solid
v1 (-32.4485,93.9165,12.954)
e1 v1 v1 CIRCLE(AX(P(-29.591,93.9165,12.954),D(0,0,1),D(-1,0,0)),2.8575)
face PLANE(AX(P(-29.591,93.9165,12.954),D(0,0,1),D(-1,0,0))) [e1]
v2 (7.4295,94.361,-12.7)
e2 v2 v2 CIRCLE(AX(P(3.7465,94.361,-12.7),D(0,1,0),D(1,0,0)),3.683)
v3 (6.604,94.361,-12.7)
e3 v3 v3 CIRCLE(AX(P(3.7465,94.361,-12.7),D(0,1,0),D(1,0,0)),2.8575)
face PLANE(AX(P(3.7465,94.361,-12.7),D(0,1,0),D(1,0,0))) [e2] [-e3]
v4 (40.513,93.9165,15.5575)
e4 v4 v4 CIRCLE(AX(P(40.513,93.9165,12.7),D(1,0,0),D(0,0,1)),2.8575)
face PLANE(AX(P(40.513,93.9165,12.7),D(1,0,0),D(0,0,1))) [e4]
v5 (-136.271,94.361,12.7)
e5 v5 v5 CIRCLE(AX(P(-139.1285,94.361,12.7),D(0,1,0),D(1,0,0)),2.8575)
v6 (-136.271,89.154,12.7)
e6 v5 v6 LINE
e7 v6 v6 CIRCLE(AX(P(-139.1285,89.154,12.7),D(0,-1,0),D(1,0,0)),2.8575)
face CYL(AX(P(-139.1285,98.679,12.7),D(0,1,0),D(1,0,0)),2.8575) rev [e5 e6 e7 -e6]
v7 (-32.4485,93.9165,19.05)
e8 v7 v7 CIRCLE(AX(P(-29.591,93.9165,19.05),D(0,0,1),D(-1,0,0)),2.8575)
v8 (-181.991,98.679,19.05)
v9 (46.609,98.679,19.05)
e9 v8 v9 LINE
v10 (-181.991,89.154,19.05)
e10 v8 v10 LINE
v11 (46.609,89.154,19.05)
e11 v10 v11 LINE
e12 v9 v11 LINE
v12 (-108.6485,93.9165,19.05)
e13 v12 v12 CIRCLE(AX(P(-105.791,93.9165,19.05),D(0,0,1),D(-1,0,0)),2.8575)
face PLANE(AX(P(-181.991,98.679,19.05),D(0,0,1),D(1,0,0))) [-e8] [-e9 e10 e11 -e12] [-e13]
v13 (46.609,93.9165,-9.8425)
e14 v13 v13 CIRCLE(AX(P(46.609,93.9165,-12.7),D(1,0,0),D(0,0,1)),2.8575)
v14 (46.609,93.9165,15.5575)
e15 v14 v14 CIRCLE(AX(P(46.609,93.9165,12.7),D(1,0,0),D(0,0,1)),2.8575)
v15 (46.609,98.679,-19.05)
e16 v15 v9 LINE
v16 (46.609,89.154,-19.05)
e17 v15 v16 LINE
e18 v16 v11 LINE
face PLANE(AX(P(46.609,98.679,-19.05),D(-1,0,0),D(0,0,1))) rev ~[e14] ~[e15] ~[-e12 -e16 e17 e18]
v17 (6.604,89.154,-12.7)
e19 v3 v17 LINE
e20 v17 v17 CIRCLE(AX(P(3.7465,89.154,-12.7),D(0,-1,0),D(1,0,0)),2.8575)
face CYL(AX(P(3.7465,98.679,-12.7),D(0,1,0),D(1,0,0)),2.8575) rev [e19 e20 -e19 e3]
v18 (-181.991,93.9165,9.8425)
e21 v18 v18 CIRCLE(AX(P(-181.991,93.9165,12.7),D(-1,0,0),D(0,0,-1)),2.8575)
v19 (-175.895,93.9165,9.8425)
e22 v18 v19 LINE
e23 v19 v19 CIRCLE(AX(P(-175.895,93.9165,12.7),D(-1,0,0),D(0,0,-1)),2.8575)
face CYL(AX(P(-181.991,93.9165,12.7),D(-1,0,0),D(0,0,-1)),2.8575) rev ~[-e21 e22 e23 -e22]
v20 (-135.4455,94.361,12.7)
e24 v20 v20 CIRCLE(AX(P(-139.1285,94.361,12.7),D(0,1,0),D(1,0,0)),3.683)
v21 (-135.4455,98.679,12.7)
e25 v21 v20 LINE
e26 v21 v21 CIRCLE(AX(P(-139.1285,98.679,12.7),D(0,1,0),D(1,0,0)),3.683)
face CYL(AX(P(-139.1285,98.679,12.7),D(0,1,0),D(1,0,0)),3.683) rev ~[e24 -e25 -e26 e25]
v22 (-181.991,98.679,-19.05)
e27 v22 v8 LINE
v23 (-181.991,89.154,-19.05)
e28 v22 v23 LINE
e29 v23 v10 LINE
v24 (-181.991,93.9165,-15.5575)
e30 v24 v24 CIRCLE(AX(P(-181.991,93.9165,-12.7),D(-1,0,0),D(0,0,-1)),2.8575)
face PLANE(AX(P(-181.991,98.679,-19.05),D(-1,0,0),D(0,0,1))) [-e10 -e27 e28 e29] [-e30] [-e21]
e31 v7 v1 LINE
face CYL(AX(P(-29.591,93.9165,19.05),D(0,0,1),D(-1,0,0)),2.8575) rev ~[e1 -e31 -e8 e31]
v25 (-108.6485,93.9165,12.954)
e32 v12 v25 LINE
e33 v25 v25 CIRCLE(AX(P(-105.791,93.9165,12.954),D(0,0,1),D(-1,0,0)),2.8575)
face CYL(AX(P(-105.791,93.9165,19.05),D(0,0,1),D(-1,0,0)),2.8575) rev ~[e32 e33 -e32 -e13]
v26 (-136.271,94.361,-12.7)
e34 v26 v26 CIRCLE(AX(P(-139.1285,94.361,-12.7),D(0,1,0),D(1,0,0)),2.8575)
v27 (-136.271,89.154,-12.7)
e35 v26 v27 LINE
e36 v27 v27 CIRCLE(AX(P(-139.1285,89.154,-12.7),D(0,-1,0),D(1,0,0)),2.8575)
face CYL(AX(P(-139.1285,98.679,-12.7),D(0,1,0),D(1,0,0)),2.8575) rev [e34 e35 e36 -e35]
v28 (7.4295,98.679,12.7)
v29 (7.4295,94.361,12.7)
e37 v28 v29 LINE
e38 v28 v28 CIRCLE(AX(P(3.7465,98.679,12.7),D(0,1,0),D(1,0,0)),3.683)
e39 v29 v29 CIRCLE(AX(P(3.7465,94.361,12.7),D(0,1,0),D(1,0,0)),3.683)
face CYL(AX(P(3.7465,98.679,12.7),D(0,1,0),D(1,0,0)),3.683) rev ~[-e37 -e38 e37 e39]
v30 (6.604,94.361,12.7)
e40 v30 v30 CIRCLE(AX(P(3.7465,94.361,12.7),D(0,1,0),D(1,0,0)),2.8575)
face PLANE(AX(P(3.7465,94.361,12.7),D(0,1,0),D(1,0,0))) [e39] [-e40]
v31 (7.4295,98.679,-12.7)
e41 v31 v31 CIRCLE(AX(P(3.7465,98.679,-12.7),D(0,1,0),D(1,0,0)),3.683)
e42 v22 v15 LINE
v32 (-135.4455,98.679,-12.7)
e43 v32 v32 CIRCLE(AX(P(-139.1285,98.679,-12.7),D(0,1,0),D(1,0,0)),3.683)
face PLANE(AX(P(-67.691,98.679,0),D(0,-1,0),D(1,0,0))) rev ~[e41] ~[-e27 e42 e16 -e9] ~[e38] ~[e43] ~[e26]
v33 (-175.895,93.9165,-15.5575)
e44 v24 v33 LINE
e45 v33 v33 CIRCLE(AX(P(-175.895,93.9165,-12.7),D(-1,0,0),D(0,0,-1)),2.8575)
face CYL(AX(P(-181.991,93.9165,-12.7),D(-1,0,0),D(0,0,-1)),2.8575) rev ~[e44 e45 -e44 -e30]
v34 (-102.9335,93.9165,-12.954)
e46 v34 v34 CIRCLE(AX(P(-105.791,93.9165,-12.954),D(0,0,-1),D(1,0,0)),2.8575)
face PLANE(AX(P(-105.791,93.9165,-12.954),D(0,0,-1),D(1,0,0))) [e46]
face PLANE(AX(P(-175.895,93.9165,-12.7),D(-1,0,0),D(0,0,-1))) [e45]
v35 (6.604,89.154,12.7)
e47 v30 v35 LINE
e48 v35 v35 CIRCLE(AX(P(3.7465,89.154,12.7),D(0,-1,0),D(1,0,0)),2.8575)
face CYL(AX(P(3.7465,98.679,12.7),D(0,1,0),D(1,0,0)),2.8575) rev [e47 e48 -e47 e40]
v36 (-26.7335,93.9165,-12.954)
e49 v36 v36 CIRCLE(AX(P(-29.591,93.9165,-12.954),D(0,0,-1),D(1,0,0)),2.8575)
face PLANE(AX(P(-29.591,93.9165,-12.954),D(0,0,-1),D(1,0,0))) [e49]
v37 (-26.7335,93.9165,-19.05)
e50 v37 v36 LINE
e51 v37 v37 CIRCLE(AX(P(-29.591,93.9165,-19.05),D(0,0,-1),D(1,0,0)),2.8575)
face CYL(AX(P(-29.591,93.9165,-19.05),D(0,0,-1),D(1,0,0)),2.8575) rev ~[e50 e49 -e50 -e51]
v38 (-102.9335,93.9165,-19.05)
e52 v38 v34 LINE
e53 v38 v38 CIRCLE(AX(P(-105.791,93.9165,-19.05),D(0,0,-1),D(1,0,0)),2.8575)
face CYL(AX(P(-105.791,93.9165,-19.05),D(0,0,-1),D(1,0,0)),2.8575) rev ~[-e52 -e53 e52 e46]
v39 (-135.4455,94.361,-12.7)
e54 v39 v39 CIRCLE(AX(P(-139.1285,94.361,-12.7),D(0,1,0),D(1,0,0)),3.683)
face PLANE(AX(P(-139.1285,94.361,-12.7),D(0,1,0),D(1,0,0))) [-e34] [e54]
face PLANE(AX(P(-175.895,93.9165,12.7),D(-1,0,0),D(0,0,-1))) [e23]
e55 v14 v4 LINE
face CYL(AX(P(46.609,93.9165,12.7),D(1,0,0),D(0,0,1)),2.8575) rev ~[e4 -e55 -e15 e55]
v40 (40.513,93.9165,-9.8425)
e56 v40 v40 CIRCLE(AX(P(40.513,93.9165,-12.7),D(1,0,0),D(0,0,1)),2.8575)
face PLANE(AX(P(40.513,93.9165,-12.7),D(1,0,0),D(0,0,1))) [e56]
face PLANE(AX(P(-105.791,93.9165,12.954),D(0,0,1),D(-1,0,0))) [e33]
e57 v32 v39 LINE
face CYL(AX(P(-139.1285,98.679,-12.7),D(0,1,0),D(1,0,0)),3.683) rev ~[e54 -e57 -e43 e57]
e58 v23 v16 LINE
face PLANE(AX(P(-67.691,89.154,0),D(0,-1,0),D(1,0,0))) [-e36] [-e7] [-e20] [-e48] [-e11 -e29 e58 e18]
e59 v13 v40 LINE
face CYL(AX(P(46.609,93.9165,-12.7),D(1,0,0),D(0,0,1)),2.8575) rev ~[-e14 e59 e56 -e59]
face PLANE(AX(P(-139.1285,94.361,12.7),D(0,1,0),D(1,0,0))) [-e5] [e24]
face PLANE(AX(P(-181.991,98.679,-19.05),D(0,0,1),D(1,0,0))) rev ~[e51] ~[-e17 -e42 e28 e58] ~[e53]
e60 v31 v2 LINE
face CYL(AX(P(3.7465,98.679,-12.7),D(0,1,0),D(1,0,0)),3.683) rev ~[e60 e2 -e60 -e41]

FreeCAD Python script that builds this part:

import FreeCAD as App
import Part
import Sketcher
from FreeCAD import Vector
Q = App.Units.Quantity


def add_polygon(sketch, points):
    """Adds a closed chain of lines whose ends are joined by coincident constraints."""
    first, n = sketch.GeometryCount, len(points)
    for a, b in zip(points, points[1:] + points[:1]):
        sketch.addGeometry(Part.LineSegment(App.Vector(*a, 0), App.Vector(*b, 0)), False)
    for i in range(n):
        sketch.addConstraint(Sketcher.Constraint("Coincident", first + i, 2, first + (i + 1) % n, 1))

doc = App.newDocument("Part")
body = doc.addObject("PartDesign::Body", "Body")

# Sketch on XZ plane
sketch1 = body.newObject("Sketcher::SketchObject", "Sketch")
sketch1.AttachmentSupport = (doc.getObject("XZ_Plane"), [""])
sketch1.MapMode = "FlatFace"
add_polygon(sketch1, [(-114.3, 19.05), (-114.3, -19.05), (114.3, -19.05), (114.3, 19.05)])  # lines 0-3
sketch1.addGeometry(Part.Circle(Vector(-71.4375, -12.7, 0), Vector(0, 0, 1), 2.8575), False)  # 4
sketch1.addGeometry(Part.Circle(Vector(71.4375, -12.7, 0), Vector(0, 0, 1), 2.8575), False)  # 5
sketch1.addGeometry(Part.Circle(Vector(-71.4375, 12.7, 0), Vector(0, 0, 1), 2.8575), False)  # 6
sketch1.addGeometry(Part.Circle(Vector(71.4375, 12.7, 0), Vector(0, 0, 1), 2.8575), False)  # 7
sketch1.addConstraint([
    Sketcher.Constraint("Vertical", 0),
    Sketcher.Constraint("Horizontal", 1),
    Sketcher.Constraint("Vertical", 2),
    Sketcher.Constraint("Horizontal", 3),
    Sketcher.Constraint("Equal", 4, 5),
    Sketcher.Constraint("Equal", 5, 6),
    Sketcher.Constraint("Equal", 6, 7),
    Sketcher.Constraint("Symmetric", 5, 3, 6, 3, -1, 1),
    Sketcher.Constraint("Symmetric", 4, 3, 7, 3, -1, 1),
    Sketcher.Constraint("Symmetric", 0, 2, 2, 2, -1, 1),
    Sketcher.Constraint("Symmetric", 4, 3, 5, 3, -2),
    Sketcher.Constraint("DistanceX", 1, 1, 1, 2, Q("9 in")),
    Sketcher.Constraint("Diameter", 4, Q("0.225 in")),
    Sketcher.Constraint("DistanceY", 0, 2, 0, 1, Q("1.5 in")),
    Sketcher.Constraint("DistanceY", 4, 3, 6, 3, Q("1 in")),
    Sketcher.Constraint("DistanceX", 4, 3, -1, 1, Q("2.8125 in")),
])
pad1 = body.newObject("PartDesign::Pad", "Pad")
pad1.Profile = sketch1
pad1.Length = Q("0.375 in")

# Sketch on XZ plane
sketch2 = body.newObject("Sketcher::SketchObject", "Sketch001")
sketch2.AttachmentSupport = (doc.getObject("XZ_Plane"), [""])
sketch2.MapMode = "FlatFace"
sketch2.addGeometry([
    Part.Circle(Vector(71.4375, -12.7, 0), Vector(0, 0, 1), 3.683),
    Part.Circle(Vector(71.4375, 12.7, 0), Vector(0, 0, 1), 3.683),
    Part.Circle(Vector(-71.4375, 12.7, 0), Vector(0, 0, 1), 3.683),
    Part.Circle(Vector(-71.4375, -12.7, 0), Vector(0, 0, 1), 3.683),
], False)
sketch2.addConstraint([
    Sketcher.Constraint("Equal", 0, 1),
    Sketcher.Constraint("Equal", 1, 2),
    Sketcher.Constraint("Equal", 2, 3),
    Sketcher.Constraint("Symmetric", 0, 3, 2, 3, -1, 1),
    Sketcher.Constraint("Symmetric", 1, 3, 3, 3, -1, 1),
    Sketcher.Constraint("Symmetric", 1, 3, 2, 3, -2),
    Sketcher.Constraint("Diameter", 0, Q("0.29 in")),
    Sketcher.Constraint("DistanceY", 0, 3, 1, 3, Q("1 in")),
    Sketcher.Constraint("DistanceX", -1, 1, 0, 3, Q("2.8125 in")),
])
pocket1 = body.newObject("PartDesign::Pocket", "Pocket")
pocket1.Profile = sketch2
pocket1.Length = Q("0.17 in")
pocket1.Reversed = True

# Sketch on YZ plane
sketch3 = body.newObject("Sketcher::SketchObject", "Sketch002")
sketch3.AttachmentSupport = (doc.getObject("YZ_Plane"), [""])
sketch3.MapMode = "FlatFace"
sketch3.AttachmentOffset = App.Placement(Vector(0, 0, 4.5 * 25.4), App.Rotation())
sketch3.addGeometry([
    Part.Circle(Vector(-4.7625, -12.7, 0), Vector(0, 0, 1), 2.8575),
    Part.Circle(Vector(-4.7625, 12.7, 0), Vector(0, 0, 1), 2.8575),
], False)
sketch3.addConstraint([
    Sketcher.Constraint("Equal", 0, 1),
    Sketcher.Constraint("Symmetric", 0, 3, 1, 3, -1),
    Sketcher.Constraint("Diameter", 0, Q("0.225 in")),
    Sketcher.Constraint("DistanceY", 0, 3, 1, 3, Q("1 in")),
    Sketcher.Constraint("DistanceX", 0, 3, -1, 1, Q("0.1875 in")),
])
pocket2 = body.newObject("PartDesign::Pocket", "Pocket001")
pocket2.Profile = sketch3
pocket2.Length = Q("0.24 in")

# Sketch on YZ plane
sketch4 = body.newObject("Sketcher::SketchObject", "Sketch003")
sketch4.AttachmentSupport = (doc.getObject("YZ_Plane"), [""])
sketch4.MapMode = "FlatFace"
sketch4.AttachmentOffset = App.Placement(Vector(0, 0, -4.5 * 25.4), App.Rotation())
sketch4.addGeometry([
    Part.Circle(Vector(-4.7625, 12.7, 0), Vector(0, 0, 1), 2.8575),
    Part.Circle(Vector(-4.7625, -12.7, 0), Vector(0, 0, 1), 2.8575),
], False)
sketch4.addConstraint([
    Sketcher.Constraint("Equal", 0, 1),
    Sketcher.Constraint("Symmetric", 0, 3, 1, 3, -1),
    Sketcher.Constraint("Diameter", 0, Q("0.225 in")),
    Sketcher.Constraint("DistanceY", 1, 3, 0, 3, Q("1 in")),
    Sketcher.Constraint("DistanceX", 0, 3, -1, 1, Q("0.1875 in")),
])
pocket3 = body.newObject("PartDesign::Pocket", "Pocket002")
pocket3.Profile = sketch4
pocket3.Length = Q("0.24 in")
pocket3.Reversed = True

# Sketch on XY plane
sketch5 = body.newObject("Sketcher::SketchObject", "Sketch004")
sketch5.AttachmentSupport = (doc.getObject("XY_Plane"), [""])
sketch5.MapMode = "FlatFace"
sketch5.AttachmentOffset = App.Placement(Vector(0, 0, 0.75 * 25.4), App.Rotation())
sketch5.addGeometry([
    Part.Circle(Vector(38.1, -4.7625, 0), Vector(0, 0, 1), 2.8575),
    Part.Circle(Vector(-38.1, -4.7625, 0), Vector(0, 0, 1), 2.8575),
], False)
sketch5.addConstraint([
    Sketcher.Constraint("Equal", 0, 1),
    Sketcher.Constraint("Symmetric", 0, 3, 1, 3, -2),
    Sketcher.Constraint("Diameter", 0, Q("0.225 in")),
    Sketcher.Constraint("DistanceX", 1, 3, 0, 3, Q("3 in")),
    Sketcher.Constraint("DistanceY", 0, 3, -1, 1, Q("0.1875 in")),
])
pocket4 = body.newObject("PartDesign::Pocket", "Pocket003")
pocket4.Profile = sketch5
pocket4.Length = Q("0.24 in")

# Sketch on XY plane
sketch6 = body.newObject("Sketcher::SketchObject", "Sketch005")
sketch6.AttachmentSupport = (doc.getObject("XY_Plane"), [""])
sketch6.MapMode = "FlatFace"
sketch6.AttachmentOffset = App.Placement(Vector(0, 0, -0.75 * 25.4), App.Rotation())
sketch6.addGeometry([
    Part.Circle(Vector(38.1, -4.7625, 0), Vector(0, 0, 1), 2.8575),
    Part.Circle(Vector(-38.1, -4.7625, 0), Vector(0, 0, 1), 2.8575),
], False)
sketch6.addConstraint([
    Sketcher.Constraint("Equal", 0, 1),
    Sketcher.Constraint("Symmetric", 0, 3, 1, 3, -2),
    Sketcher.Constraint("Diameter", 0, Q("0.225 in")),
    Sketcher.Constraint("DistanceX", 1, 3, 0, 3, Q("3 in")),
    Sketcher.Constraint("DistanceY", 0, 3, -1, 1, Q("0.1875 in")),
])
pocket5 = body.newObject("PartDesign::Pocket", "Pocket004")
pocket5.Profile = sketch6
pocket5.Length = Q("0.24 in")
pocket5.Reversed = True
body2 = doc.addObject("PartDesign::Body", "Body001")
doc.recompute()

body.Placement = App.Placement(Vector(-67.691, 98.679, 0), App.Rotation(Vector(0, 0, 1), 0))
boolean = body2.newObject("PartDesign::Boolean", "Boolean")
boolean.Type = "Fuse"
boolean.addObjects([body])

doc.recompute()
